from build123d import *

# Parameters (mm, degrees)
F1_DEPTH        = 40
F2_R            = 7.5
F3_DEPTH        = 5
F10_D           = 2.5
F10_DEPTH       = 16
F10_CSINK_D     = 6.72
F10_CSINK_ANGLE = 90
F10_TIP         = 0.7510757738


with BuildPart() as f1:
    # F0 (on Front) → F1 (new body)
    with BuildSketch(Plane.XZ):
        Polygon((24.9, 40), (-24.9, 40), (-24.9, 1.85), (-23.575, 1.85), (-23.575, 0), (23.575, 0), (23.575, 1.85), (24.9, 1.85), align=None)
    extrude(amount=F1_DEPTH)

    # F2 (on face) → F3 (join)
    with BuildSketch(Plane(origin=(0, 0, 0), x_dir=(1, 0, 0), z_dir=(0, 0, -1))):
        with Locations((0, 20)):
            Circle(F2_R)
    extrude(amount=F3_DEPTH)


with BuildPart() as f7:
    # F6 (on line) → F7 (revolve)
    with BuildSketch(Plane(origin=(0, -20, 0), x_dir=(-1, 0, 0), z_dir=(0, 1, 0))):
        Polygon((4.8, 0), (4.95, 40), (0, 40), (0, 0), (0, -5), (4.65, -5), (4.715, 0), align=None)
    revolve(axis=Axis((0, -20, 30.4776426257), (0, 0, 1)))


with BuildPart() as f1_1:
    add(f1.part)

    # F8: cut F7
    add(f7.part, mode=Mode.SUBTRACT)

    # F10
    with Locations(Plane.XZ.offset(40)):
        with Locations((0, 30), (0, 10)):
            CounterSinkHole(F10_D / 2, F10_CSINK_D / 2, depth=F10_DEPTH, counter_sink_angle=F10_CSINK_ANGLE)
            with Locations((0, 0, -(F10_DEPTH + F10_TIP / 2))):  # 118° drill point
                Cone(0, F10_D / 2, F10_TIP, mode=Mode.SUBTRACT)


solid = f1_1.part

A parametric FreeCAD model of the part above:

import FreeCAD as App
import Part
import Sketcher

V = App.Vector
Q = App.Units.Quantity

doc = App.newDocument("Part")
body = doc.addObject("PartDesign::Body", "Body")

# Sketch on XZ plane
sketch1 = doc.addObject("Sketcher::SketchObject", "Sketch")
body.addObject(sketch1)
sketch1.AttachmentSupport = (doc.XZ_Plane, [""])
sketch1.MapMode = "FlatFace"
sketch1.addGeometry([
    Part.LineSegment(V(24.9, 40, 0), V(-24.9, 40, 0)),  # 0
    Part.LineSegment(V(-24.9, 40, 0), V(-24.9, 1.9, 0)),  # 1
    Part.LineSegment(V(-24.9, 1.9, 0), V(-23.6, 1.9, 0)),  # 2
    Part.LineSegment(V(-23.6, 1.9, 0), V(-23.6, 0, 0)),  # 3
    Part.LineSegment(V(-23.6, 0, 0), V(23.6, 0, 0)),  # 4
    Part.LineSegment(V(23.6, 0, 0), V(23.6, 1.9, 0)),  # 5
    Part.LineSegment(V(23.6, 1.9, 0), V(24.9, 1.9, 0)),  # 6
    Part.LineSegment(V(24.9, 1.9, 0), V(24.9, 40, 0)),  # 7
], False)
sketch1.addConstraint([
    Sketcher.Constraint("Coincident", 0, 2, 1, 1),
    Sketcher.Constraint("Coincident", 1, 2, 2, 1),
    Sketcher.Constraint("Coincident", 2, 2, 3, 1),
    Sketcher.Constraint("Coincident", 3, 2, 4, 1),
    Sketcher.Constraint("Coincident", 4, 2, 5, 1),
    Sketcher.Constraint("Coincident", 5, 2, 6, 1),
    Sketcher.Constraint("Coincident", 6, 2, 7, 1),
    Sketcher.Constraint("Coincident", 7, 2, 0, 1),
    Sketcher.Constraint("Horizontal", 0),
    Sketcher.Constraint("Vertical", 1),
    Sketcher.Constraint("Horizontal", 2),
    Sketcher.Constraint("Vertical", 3),
    Sketcher.Constraint("Horizontal", 4),
    Sketcher.Constraint("Vertical", 5),
    Sketcher.Constraint("Horizontal", 6),
    Sketcher.Constraint("Vertical", 7),
    Sketcher.Constraint("Symmetric", 3, 2, 4, 2, -1, 1),
    Sketcher.Constraint("Symmetric", 1, 2, 6, 2, -2),
    Sketcher.Constraint("DistanceX", 0, 2, 0, 1, Q("49.8 mm")),
    Sketcher.Constraint("DistanceY", -1, 1, 0, 2, Q("40 mm")),
    Sketcher.Constraint("DistanceX", 4, 1, 4, 2, Q("47.15 mm")),
    Sketcher.Constraint("DistanceY", 1, 2, 1, 1, Q("38.15 mm")),
])
pad1 = doc.addObject("PartDesign::Pad", "Pad")
body.addObject(pad1)
pad1.Profile = sketch1
pad1.Length = 40

# Sketch on XY plane
sketch2 = doc.addObject("Sketcher::SketchObject", "Sketch001")
body.addObject(sketch2)
sketch2.AttachmentSupport = (doc.XY_Plane, [""])
sketch2.MapMode = "FlatFace"
sketch2.addGeometry(Part.Circle(V(0, -20, 0), V(0, 0, 1), 8), False)
sketch2.addConstraint([
    Sketcher.Constraint("PointOnObject", 0, 3, -2),
    Sketcher.Constraint("Diameter", 0, Q("15 mm")),
    Sketcher.Constraint("DistanceY", 0, 3, -1, 1, Q("20 mm")),
])
pad2 = doc.addObject("PartDesign::Pad", "Pad001")
body.addObject(pad2)
pad2.Profile = sketch2
pad2.Length = 5
pad2.Reversed = True
body2 = doc.addObject("PartDesign::Body", "Body001")

# Sketch on XZ plane
sketch3 = doc.addObject("Sketcher::SketchObject", "Sketch002")
body2.addObject(sketch3)
sketch3.AttachmentSupport = (doc.getObject("XZ_Plane001"), [""])
sketch3.MapMode = "FlatFace"
sketch3.AttachmentOffset = App.Placement(V(0, 0, 20), App.Rotation())
sketch3.addGeometry([
    Part.LineSegment(V(-4.8, 0, 0), V(-4.95, 40, 0)),  # 0
    Part.LineSegment(V(-4.95, 40, 0), V(0, 40, 0)),  # 1
    Part.LineSegment(V(0, 40, 0), V(0, -5, 0)),  # 2
    Part.LineSegment(V(0, -5, 0), V(-4.65, -5, 0)),  # 3
    Part.LineSegment(V(-4.65, -5, 0), V(-4.71, 0, 0)),  # 4
    Part.LineSegment(V(-4.71, 0, 0), V(-4.8, 0, 0)),  # 5
], False)
sketch3.addConstraint([
    Sketcher.Constraint("Coincident", 0, 2, 1, 1),
    Sketcher.Constraint("Coincident", 1, 2, 2, 1),
    Sketcher.Constraint("Coincident", 2, 2, 3, 1),
    Sketcher.Constraint("Coincident", 3, 2, 4, 1),
    Sketcher.Constraint("Coincident", 4, 2, 5, 1),
    Sketcher.Constraint("Coincident", 5, 2, 0, 1),
    Sketcher.Constraint("Horizontal", 1),
    Sketcher.Constraint("Vertical", 2),
    Sketcher.Constraint("Horizontal", 3),
    Sketcher.Constraint("Horizontal", 5),
    Sketcher.Constraint("PointOnObject", 1, 2, -2),
    Sketcher.Constraint("PointOnObject", 4, 2, -1),
    Sketcher.Constraint("DistanceY", 2, 2, 2, 1, Q("45 mm")),
    Sketcher.Constraint("DistanceY", -1, 1, 0, 2, Q("40 mm")),
    Sketcher.Constraint("DistanceX", 1, 1, 1, 2, Q("4.95 mm")),
    Sketcher.Constraint("DistanceX", 3, 2, 3, 1, Q("4.65 mm")),
    Sketcher.Constraint("DistanceX", 5, 2, -1, 1, Q("4.8 mm")),
    Sketcher.Constraint("DistanceX", 5, 2, 5, 1, Q("0.085 mm")),
])
revolution = doc.addObject("PartDesign::Revolution", "Revolution")
body2.addObject(revolution)
revolution.Profile = sketch3
revolution.ReferenceAxis = (sketch3, ["V_Axis"])
revolution.Angle = 360
doc.recompute()

boolean = doc.addObject("PartDesign::Boolean", "Boolean")
body.addObject(boolean)
boolean.Type = "Cut"
boolean.addObjects([body2])

# Sketch on XZ plane
sketch4 = doc.addObject("Sketcher::SketchObject", "Sketch003")
body.addObject(sketch4)
sketch4.AttachmentSupport = (doc.XZ_Plane, [""])
sketch4.MapMode = "FlatFace"
sketch4.AttachmentOffset = App.Placement(V(0, 0, 40), App.Rotation())
sketch4.addGeometry([
    Part.Circle(V(0, 30, 0), V(0, 0, 1), 1.2),
    Part.Circle(V(0, 10, 0), V(0, 0, 1), 1.2),
], False)
sketch4.addConstraint([
    Sketcher.Constraint("Equal", 0, 1),
    Sketcher.Constraint("PointOnObject", 0, 3, -2),
    Sketcher.Constraint("PointOnObject", 1, 3, -2),
    Sketcher.Constraint("Diameter", 0, Q("2.5 mm")),
    Sketcher.Constraint("DistanceY", -1, 1, 0, 3, Q("30 mm")),
    Sketcher.Constraint("DistanceY", -1, 1, 1, 3, Q("10 mm")),
])
doc.recompute()
hole = doc.addObject("PartDesign::Hole", "Hole")
body.addObject(hole)
hole.Profile = sketch4
hole.ThreadType = "None"
hole.Diameter = 2.5
hole.DepthType = "Dimension"
hole.Depth = 16
hole.DrillPoint = "Angled"
hole.DrillPointAngle = 118
hole.HoleCutType = "Countersink"
hole.HoleCutDiameter = 6.72
hole.HoleCutCountersinkAngle = 90

doc.recompute()
